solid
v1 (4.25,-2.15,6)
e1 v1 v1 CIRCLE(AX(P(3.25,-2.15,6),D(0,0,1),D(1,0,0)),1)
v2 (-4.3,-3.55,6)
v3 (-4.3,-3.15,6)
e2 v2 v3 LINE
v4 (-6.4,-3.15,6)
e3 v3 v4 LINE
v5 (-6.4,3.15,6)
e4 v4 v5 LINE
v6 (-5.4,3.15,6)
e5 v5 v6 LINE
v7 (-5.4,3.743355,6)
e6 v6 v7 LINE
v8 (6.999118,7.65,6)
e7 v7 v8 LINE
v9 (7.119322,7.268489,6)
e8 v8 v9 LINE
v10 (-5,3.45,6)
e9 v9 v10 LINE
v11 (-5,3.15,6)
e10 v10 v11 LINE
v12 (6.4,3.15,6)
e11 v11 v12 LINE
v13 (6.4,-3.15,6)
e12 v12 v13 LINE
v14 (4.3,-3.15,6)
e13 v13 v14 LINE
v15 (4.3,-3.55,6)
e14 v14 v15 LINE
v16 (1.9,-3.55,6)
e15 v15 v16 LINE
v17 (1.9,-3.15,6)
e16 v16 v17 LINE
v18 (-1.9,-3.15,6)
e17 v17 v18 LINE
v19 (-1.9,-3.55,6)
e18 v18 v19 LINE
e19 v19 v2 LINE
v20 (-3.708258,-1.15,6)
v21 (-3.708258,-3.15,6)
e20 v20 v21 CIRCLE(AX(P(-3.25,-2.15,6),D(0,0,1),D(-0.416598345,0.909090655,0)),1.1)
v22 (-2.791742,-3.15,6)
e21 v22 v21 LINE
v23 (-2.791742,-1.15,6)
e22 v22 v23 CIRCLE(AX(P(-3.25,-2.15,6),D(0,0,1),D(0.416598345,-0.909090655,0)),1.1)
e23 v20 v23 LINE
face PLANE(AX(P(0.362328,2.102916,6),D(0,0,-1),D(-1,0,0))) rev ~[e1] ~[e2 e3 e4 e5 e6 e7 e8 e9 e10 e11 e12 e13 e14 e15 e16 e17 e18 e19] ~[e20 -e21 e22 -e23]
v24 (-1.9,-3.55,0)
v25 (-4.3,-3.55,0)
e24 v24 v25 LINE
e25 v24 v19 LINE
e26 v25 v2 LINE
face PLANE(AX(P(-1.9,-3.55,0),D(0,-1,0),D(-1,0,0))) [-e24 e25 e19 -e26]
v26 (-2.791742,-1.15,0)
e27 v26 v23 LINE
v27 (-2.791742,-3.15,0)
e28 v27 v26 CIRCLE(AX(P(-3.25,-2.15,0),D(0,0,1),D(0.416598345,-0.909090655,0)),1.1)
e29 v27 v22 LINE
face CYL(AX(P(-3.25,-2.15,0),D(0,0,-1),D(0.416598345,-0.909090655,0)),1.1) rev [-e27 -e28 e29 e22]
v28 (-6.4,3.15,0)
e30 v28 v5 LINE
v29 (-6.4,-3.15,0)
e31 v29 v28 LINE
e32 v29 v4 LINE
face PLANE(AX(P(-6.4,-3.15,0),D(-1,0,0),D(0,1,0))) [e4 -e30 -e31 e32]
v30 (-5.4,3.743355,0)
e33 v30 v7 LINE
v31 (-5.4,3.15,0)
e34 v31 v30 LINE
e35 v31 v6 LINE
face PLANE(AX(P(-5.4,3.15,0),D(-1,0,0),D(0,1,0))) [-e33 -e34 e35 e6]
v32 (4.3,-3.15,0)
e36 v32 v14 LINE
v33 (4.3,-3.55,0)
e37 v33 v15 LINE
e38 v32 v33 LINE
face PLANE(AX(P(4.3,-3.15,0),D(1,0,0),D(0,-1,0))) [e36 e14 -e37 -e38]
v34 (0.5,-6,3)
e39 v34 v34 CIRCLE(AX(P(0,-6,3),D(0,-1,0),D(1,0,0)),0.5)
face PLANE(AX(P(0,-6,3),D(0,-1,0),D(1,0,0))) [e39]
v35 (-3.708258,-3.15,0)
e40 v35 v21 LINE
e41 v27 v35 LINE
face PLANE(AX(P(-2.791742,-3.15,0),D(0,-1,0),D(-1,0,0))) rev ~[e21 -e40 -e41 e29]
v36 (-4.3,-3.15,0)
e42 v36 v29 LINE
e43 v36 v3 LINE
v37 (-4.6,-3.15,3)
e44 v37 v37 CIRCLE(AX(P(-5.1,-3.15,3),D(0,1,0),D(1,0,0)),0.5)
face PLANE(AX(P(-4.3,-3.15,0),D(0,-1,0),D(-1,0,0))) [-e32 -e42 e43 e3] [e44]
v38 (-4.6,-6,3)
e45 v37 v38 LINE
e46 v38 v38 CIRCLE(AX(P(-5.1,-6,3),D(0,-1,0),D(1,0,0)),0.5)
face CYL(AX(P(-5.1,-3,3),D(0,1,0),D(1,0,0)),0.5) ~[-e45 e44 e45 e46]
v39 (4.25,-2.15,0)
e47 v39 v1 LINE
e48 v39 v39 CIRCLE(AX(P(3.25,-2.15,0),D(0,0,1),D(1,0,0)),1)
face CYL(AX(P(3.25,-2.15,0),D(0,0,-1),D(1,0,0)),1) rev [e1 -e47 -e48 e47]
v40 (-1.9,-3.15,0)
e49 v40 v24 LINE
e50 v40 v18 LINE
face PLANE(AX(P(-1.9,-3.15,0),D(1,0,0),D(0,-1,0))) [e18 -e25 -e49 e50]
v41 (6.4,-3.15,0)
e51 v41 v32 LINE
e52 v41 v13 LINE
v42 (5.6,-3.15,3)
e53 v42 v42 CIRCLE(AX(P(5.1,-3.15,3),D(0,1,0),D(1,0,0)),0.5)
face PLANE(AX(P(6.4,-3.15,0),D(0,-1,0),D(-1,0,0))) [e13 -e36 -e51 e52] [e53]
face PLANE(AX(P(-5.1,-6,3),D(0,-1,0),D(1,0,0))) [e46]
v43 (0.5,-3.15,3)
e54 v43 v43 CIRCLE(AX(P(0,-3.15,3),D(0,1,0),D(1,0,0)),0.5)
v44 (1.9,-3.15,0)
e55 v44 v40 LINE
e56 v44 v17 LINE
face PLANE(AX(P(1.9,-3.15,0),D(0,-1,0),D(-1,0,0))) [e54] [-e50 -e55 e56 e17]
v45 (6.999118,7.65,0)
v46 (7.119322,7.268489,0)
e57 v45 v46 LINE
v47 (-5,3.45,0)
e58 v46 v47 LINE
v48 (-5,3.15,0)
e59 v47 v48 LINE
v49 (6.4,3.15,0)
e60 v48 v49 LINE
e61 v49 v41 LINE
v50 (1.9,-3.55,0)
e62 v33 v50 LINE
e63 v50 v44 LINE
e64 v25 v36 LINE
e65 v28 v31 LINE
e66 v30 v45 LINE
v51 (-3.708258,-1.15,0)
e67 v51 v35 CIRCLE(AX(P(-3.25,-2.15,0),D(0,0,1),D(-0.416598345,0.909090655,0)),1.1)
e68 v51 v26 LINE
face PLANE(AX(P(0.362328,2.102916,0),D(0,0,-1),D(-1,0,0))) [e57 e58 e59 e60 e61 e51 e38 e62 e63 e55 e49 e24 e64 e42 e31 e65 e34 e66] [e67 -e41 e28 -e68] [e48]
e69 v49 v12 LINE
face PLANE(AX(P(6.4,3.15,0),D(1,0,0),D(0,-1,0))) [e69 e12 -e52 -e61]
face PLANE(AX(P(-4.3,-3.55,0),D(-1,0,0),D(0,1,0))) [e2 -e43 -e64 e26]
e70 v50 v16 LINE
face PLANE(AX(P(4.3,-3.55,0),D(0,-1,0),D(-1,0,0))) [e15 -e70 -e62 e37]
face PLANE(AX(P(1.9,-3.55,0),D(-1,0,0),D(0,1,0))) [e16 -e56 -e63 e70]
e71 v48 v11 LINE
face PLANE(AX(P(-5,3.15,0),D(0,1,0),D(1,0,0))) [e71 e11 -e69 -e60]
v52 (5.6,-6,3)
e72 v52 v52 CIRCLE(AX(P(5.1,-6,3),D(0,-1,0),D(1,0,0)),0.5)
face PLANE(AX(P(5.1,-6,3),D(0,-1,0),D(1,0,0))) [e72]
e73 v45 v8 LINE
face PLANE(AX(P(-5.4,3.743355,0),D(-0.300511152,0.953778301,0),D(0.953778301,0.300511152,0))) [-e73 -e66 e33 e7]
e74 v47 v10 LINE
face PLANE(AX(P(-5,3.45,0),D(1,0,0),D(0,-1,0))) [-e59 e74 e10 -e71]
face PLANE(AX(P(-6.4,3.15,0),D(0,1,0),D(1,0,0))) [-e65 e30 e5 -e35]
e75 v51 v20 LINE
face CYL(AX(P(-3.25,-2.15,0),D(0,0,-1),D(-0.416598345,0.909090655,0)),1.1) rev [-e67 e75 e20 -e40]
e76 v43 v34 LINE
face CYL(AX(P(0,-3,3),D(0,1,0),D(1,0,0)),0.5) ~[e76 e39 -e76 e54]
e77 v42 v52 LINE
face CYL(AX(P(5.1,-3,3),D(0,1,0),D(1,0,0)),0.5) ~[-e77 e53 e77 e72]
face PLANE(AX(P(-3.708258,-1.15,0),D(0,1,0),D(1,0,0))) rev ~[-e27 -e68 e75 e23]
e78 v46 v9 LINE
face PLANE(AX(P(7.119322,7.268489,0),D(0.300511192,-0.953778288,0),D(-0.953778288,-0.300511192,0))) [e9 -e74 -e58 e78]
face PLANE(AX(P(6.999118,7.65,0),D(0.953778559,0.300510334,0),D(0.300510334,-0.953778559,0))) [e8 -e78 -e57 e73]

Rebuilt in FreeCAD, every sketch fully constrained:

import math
import FreeCAD as App
import Part
import Sketcher

doc = App.newDocument("Part")
body = doc.addObject("PartDesign::Body", "Body")

# Sketch on XY plane
sketch1 = body.newObject("Sketcher::SketchObject", "Sketch")
sketch1.AttachmentSupport = (doc.getObject("XY_Plane"), [""])
sketch1.MapMode = "FlatFace"
sketch1.addGeometry([
    Part.LineSegment(App.Vector(6.4, -3.15, 0), App.Vector(6.4, 3.15, 0)),  # 0
    Part.LineSegment(App.Vector(6.4, 3.15, 0), App.Vector(-5, 3.15, 0)),  # 1
    Part.LineSegment(App.Vector(-5, 3.15, 0), App.Vector(-5, 3.45, 0)),  # 2
    Part.LineSegment(App.Vector(-5, 3.45, 0), App.Vector(7.12, 7.27, 0)),  # 3
    Part.LineSegment(App.Vector(7.12, 7.27, 0), App.Vector(7, 7.65, 0)),  # 4
    Part.LineSegment(App.Vector(7, 7.65, 0), App.Vector(-5.4, 3.74, 0)),  # 5
    Part.LineSegment(App.Vector(-5.4, 3.74, 0), App.Vector(-5.4, 3.15, 0)),  # 6
    Part.LineSegment(App.Vector(-5.4, 3.15, 0), App.Vector(-6.4, 3.15, 0)),  # 7
    Part.LineSegment(App.Vector(-6.4, 3.15, 0), App.Vector(-6.4, -3.15, 0)),  # 8
    Part.LineSegment(App.Vector(-6.4, -3.15, 0), App.Vector(-4.3, -3.15, 0)),  # 9
    Part.LineSegment(App.Vector(-4.3, -3.15, 0), App.Vector(-4.3, -3.55, 0)),  # 10
    Part.LineSegment(App.Vector(-4.3, -3.55, 0), App.Vector(-1.9, -3.55, 0)),  # 11
    Part.LineSegment(App.Vector(-1.9, -3.55, 0), App.Vector(-1.9, -3.15, 0)),  # 12
    Part.LineSegment(App.Vector(-1.9, -3.15, 0), App.Vector(1.9, -3.15, 0)),  # 13
    Part.LineSegment(App.Vector(1.9, -3.15, 0), App.Vector(1.9, -3.55, 0)),  # 14
    Part.LineSegment(App.Vector(1.9, -3.55, 0), App.Vector(4.3, -3.55, 0)),  # 15
    Part.LineSegment(App.Vector(4.3, -3.55, 0), App.Vector(4.3, -3.15, 0)),  # 16
    Part.LineSegment(App.Vector(4.3, -3.15, 0), App.Vector(6.4, -3.15, 0)),  # 17
    Part.Circle(App.Vector(3.25, -2.15, 0), App.Vector(0, 0, 1), 1),  # 18
    Part.LineSegment(App.Vector(-3.71, -1.15, 0), App.Vector(-2.79, -1.15, 0)),  # 19
    Part.ArcOfCircle(Part.Circle(App.Vector(-3.25, -2.15, 0), App.Vector(0, 0, 1), 1.1), math.radians(-65), math.radians(65)),  # 20
    Part.LineSegment(App.Vector(-2.79, -3.15, 0), App.Vector(-3.71, -3.15, 0)),  # 21
    Part.ArcOfCircle(Part.Circle(App.Vector(-3.25, -2.15, 0), App.Vector(0, 0, 1), 1.1), math.radians(115), math.radians(245)),  # 22
], False)
sketch1.addConstraint([
    Sketcher.Constraint("Coincident", 0, 2, 1, 1),
    Sketcher.Constraint("Coincident", 1, 2, 2, 1),
    Sketcher.Constraint("Coincident", 2, 2, 3, 1),
    Sketcher.Constraint("Coincident", 3, 2, 4, 1),
    Sketcher.Constraint("Coincident", 4, 2, 5, 1),
    Sketcher.Constraint("Coincident", 5, 2, 6, 1),
    Sketcher.Constraint("Coincident", 6, 2, 7, 1),
    Sketcher.Constraint("Coincident", 7, 2, 8, 1),
    Sketcher.Constraint("Coincident", 8, 2, 9, 1),
    Sketcher.Constraint("Coincident", 9, 2, 10, 1),
    Sketcher.Constraint("Coincident", 10, 2, 11, 1),
    Sketcher.Constraint("Coincident", 11, 2, 12, 1),
    Sketcher.Constraint("Coincident", 12, 2, 13, 1),
    Sketcher.Constraint("Coincident", 13, 2, 14, 1),
    Sketcher.Constraint("Coincident", 14, 2, 15, 1),
    Sketcher.Constraint("Coincident", 15, 2, 16, 1),
    Sketcher.Constraint("Coincident", 16, 2, 17, 1),
    Sketcher.Constraint("Coincident", 17, 2, 0, 1),
    Sketcher.Constraint("Coincident", 19, 2, 20, 2),
    Sketcher.Constraint("Coincident", 20, 1, 21, 1),
    Sketcher.Constraint("Coincident", 21, 2, 22, 2),
    Sketcher.Constraint("Coincident", 22, 1, 19, 1),
    Sketcher.Constraint("Vertical", 0),
    Sketcher.Constraint("Horizontal", 1),
    Sketcher.Constraint("Vertical", 2),
    Sketcher.Constraint("Vertical", 6),
    Sketcher.Constraint("Horizontal", 7),
    Sketcher.Constraint("Vertical", 8),
    Sketcher.Constraint("Horizontal", 9),
    Sketcher.Constraint("Vertical", 10),
    Sketcher.Constraint("Horizontal", 11),
    Sketcher.Constraint("Vertical", 12),
    Sketcher.Constraint("Horizontal", 13),
    Sketcher.Constraint("Vertical", 14),
    Sketcher.Constraint("Horizontal", 15),
    Sketcher.Constraint("Vertical", 16),
    Sketcher.Constraint("Horizontal", 17),
    Sketcher.Constraint("Horizontal", 19),
    Sketcher.Constraint("Horizontal", 21),
    Sketcher.Constraint("Coincident", 22, 3, 20, 3),
    Sketcher.Constraint("Equal", 20, 22),
    Sketcher.Constraint("Symmetric", 0, 2, 8, 2, -1, 1),
    Sketcher.Constraint("Symmetric", 18, 3, 20, 3, -2),
    Sketcher.Constraint("Symmetric", 11, 2, 14, 2, -2),
    Sketcher.Constraint("Symmetric", 9, 2, 16, 2, -2),
    Sketcher.Constraint("Perpendicular", 3, 4),
    Sketcher.Constraint("Perpendicular", 4, 5),
    Sketcher.Constraint("Horizontal", 1, 2, 6, 2),
    Sketcher.Constraint("Horizontal", 9, 2, 12, 2),
    Sketcher.Constraint("Horizontal", 17, 2, 20, 1),
    Sketcher.Constraint("Vertical", 19, 2, 20, 1),
    Sketcher.Constraint("Diameter", 18, 2.0),
    Sketcher.Constraint("Radius", 20, 1.1),
    Sketcher.Constraint("DistanceX", 7, 2, 7, 1, 1.0),
    Sketcher.Constraint("Distance", 5, 13.0),
    Sketcher.Constraint("DistanceX", 1, 2, 1, 1, 11.4),
    Sketcher.Constraint("DistanceX", 9, 1, 9, 2, 2.1),
    Sketcher.Constraint("DistanceX", 11, 1, 11, 2, 2.4),
    Sketcher.Constraint("DistanceX", 13, 1, 13, 2, 3.8),
    Sketcher.Constraint("DistanceY", 0, 1, 0, 2, 6.3),
    Sketcher.Constraint("DistanceY", 2, 1, 2, 2, 0.3),
    Sketcher.Constraint("DistanceY", 10, 2, 10, 1, 0.4),
    Sketcher.Constraint("DistanceY", 8, 2, 20, 3, 1.0),
    Sketcher.Constraint("Distance", 4, 0.4),
    Sketcher.Constraint("DistanceX", 20, 3, 18, 3, 6.5),
    Sketcher.Constraint("DistanceY", 0, 2, 4, 2, 4.5),
])
pad1 = body.newObject("PartDesign::Pad", "Pad")
pad1.Profile = sketch1
pad1.Length = 6

# Sketch on XZ plane
sketch2 = body.newObject("Sketcher::SketchObject", "Sketch001")
sketch2.AttachmentSupport = (doc.getObject("XZ_Plane"), [""])
sketch2.MapMode = "FlatFace"
sketch2.AttachmentOffset = App.Placement(App.Vector(0, 0, 3), App.Rotation())
sketch2.addGeometry(Part.Circle(App.Vector(-5.1, 3, 0), App.Vector(0, 0, 1), 0.5), False)
sketch2.addConstraint([
    Sketcher.Constraint("Diameter", 0, 1.0),
    Sketcher.Constraint("DistanceY", -1, 1, 0, 3, 3.0),
    Sketcher.Constraint("DistanceX", 0, 3, -1, 1, 5.1),
])
pad2 = body.newObject("PartDesign::Pad", "Pad001")
pad2.Profile = sketch2
pad2.Length = 3
doc.recompute()

linearpattern = body.newObject("PartDesign::LinearPattern", "LinearPattern")
linearpattern.Originals = [pad2]
linearpattern.Direction = (doc.getObject("X_Axis"), [""])
linearpattern.Mode = "offset"
linearpattern.Offset = 5.1
linearpattern.Occurrences = 3
body.Tip = linearpattern

doc.recompute()
